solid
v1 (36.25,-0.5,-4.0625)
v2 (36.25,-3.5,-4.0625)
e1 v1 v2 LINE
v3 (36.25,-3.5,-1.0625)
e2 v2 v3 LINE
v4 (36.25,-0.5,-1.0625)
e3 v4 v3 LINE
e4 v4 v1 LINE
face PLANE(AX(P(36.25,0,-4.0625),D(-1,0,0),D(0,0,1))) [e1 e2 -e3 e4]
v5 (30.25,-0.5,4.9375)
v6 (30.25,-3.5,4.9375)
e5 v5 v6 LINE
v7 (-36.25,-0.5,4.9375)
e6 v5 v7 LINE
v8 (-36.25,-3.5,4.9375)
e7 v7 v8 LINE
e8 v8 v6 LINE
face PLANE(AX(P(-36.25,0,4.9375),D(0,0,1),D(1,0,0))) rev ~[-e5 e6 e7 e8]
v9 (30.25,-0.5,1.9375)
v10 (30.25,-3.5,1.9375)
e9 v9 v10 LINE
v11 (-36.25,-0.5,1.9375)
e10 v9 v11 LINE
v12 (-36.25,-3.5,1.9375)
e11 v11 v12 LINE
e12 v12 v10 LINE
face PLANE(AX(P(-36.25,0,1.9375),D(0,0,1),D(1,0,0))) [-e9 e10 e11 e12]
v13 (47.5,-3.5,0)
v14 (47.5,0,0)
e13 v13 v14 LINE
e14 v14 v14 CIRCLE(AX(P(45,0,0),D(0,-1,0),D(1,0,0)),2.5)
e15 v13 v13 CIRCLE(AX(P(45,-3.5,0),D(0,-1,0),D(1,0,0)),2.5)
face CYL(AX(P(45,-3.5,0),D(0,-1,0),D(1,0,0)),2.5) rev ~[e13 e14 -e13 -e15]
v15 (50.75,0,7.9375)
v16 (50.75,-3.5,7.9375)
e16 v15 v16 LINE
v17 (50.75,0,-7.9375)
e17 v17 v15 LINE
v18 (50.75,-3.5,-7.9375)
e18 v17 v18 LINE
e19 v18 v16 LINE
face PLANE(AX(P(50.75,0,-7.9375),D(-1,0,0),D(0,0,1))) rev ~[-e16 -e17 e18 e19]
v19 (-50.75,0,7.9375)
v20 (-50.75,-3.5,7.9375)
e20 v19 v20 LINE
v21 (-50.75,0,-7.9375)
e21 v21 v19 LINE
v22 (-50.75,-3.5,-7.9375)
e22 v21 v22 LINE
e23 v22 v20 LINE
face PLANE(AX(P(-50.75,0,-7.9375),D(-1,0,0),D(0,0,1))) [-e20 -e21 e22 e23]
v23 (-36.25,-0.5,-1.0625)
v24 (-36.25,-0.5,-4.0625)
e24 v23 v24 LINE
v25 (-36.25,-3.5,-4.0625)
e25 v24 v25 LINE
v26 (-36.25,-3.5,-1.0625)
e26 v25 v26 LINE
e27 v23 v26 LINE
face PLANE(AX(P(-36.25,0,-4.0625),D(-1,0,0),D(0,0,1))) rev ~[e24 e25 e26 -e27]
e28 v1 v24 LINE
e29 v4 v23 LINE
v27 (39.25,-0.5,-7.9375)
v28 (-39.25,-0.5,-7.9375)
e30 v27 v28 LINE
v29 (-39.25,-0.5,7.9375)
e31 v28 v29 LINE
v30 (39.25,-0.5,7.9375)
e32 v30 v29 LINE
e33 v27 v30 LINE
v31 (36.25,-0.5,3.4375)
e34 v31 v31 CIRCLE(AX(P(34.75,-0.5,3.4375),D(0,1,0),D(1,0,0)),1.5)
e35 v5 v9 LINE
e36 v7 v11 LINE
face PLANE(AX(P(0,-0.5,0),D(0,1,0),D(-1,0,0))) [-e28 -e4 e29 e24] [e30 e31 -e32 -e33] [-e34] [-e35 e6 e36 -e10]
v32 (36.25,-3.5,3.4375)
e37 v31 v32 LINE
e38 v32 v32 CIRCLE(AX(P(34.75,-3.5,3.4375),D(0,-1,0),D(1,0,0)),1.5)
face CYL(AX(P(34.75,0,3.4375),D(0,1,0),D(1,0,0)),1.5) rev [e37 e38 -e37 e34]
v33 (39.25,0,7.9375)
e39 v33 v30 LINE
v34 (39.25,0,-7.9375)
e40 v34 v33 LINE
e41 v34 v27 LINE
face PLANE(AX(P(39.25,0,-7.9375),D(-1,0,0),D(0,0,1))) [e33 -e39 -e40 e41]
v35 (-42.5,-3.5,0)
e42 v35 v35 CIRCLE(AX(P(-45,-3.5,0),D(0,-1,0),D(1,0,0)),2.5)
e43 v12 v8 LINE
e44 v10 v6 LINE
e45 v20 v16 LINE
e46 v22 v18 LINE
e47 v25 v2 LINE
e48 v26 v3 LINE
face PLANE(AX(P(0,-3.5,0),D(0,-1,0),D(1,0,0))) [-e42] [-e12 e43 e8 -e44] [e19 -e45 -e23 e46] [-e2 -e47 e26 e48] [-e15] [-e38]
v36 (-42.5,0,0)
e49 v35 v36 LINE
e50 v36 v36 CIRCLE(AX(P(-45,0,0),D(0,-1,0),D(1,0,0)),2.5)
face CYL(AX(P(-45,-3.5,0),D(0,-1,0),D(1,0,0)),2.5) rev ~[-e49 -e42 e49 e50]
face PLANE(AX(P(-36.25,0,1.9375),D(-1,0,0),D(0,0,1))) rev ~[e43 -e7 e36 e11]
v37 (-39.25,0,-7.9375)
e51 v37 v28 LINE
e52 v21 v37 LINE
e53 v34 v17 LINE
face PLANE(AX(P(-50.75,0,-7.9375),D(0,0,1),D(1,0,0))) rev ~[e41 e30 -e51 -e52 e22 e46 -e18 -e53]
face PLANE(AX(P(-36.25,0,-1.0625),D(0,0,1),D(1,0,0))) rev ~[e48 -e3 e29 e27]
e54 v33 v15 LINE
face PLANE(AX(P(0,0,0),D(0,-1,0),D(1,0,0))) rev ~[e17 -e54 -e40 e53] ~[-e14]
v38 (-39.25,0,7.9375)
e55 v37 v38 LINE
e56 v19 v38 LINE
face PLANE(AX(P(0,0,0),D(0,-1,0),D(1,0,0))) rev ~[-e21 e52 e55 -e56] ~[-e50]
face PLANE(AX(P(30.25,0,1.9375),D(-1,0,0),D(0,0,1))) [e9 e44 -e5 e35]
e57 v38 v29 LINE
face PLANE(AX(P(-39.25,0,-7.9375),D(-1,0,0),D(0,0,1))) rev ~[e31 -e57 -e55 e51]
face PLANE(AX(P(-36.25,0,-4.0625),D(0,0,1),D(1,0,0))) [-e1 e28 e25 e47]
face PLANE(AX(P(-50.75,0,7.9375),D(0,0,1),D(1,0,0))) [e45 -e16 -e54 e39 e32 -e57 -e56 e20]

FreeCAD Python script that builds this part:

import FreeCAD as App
import Part
import Sketcher

doc = App.newDocument("Part")
body = doc.addObject("PartDesign::Body", "Body")

sketch1 = body.newObject("Sketcher::SketchObject", "Sketch")
sketch1.AttachmentSupport = (doc.getObject("XZ_Plane"), [""])
sketch1.MapMode = "FlatFace"
sketch1.addGeometry([
    Part.LineSegment(App.Vector(-50.8, 7.9, 0), App.Vector(-50.8, -7.9, 0)),
    Part.LineSegment(App.Vector(-50.8, -7.9, 0), App.Vector(50.8, -7.9, 0)),
    Part.LineSegment(App.Vector(50.8, -7.9, 0), App.Vector(50.8, 7.9, 0)),
    Part.LineSegment(App.Vector(50.8, 7.9, 0), App.Vector(-50.8, 7.9, 0)),
    Part.LineSegment(App.Vector(36.2, -4.1, 0), App.Vector(-36.2, -4.1, 0)),
    Part.LineSegment(App.Vector(-36.2, -4.1, 0), App.Vector(-36.2, -1.1, 0)),
    Part.LineSegment(App.Vector(-36.2, -1.1, 0), App.Vector(36.2, -1.1, 0)),
    Part.LineSegment(App.Vector(36.2, -1.1, 0), App.Vector(36.2, -4.1, 0)),
    Part.LineSegment(App.Vector(30.2, 1.9, 0), App.Vector(-36.2, 1.9, 0)),
    Part.LineSegment(App.Vector(-36.2, 1.9, 0), App.Vector(-36.2, 4.9, 0)),
    Part.LineSegment(App.Vector(-36.2, 4.9, 0), App.Vector(30.2, 4.9, 0)),
    Part.LineSegment(App.Vector(30.2, 4.9, 0), App.Vector(30.2, 1.9, 0)),
    Part.Circle(App.Vector(34.8, 3.4, 0), App.Vector(0, 0, 1), 1.5),
], False)
sketch1.addConstraint([
    Sketcher.Constraint("Coincident", 0, 2, 1, 1),
    Sketcher.Constraint("Coincident", 1, 2, 2, 1),
    Sketcher.Constraint("Coincident", 2, 2, 3, 1),
    Sketcher.Constraint("Coincident", 3, 2, 0, 1),
    Sketcher.Constraint("Coincident", 4, 2, 5, 1),
    Sketcher.Constraint("Coincident", 5, 2, 6, 1),
    Sketcher.Constraint("Coincident", 6, 2, 7, 1),
    Sketcher.Constraint("Coincident", 7, 2, 4, 1),
    Sketcher.Constraint("Coincident", 8, 2, 9, 1),
    Sketcher.Constraint("Coincident", 9, 2, 10, 1),
    Sketcher.Constraint("Coincident", 10, 2, 11, 1),
    Sketcher.Constraint("Coincident", 11, 2, 8, 1),
    Sketcher.Constraint("Vertical", 0),
    Sketcher.Constraint("Horizontal", 1),
    Sketcher.Constraint("Vertical", 2),
    Sketcher.Constraint("Horizontal", 3),
    Sketcher.Constraint("Horizontal", 4),
    Sketcher.Constraint("Vertical", 5),
    Sketcher.Constraint("Horizontal", 6),
    Sketcher.Constraint("Vertical", 7),
    Sketcher.Constraint("Horizontal", 8),
    Sketcher.Constraint("Vertical", 9),
    Sketcher.Constraint("Horizontal", 10),
    Sketcher.Constraint("Vertical", 11),
    Sketcher.Constraint("Symmetric", 0, 2, 2, 2, -1, 1),
    Sketcher.Constraint("Vertical", 5, 2, 8, 2),
    Sketcher.Constraint("Equal", 7, 9),
    Sketcher.Constraint("Diameter", 12, 3.0),
    Sketcher.Constraint("DistanceY", 5, 1, 5, 2, 3.0),
    Sketcher.Constraint("DistanceX", 1, 1, 1, 2, 101.5),
    Sketcher.Constraint("DistanceX", 4, 2, 4, 1, 72.5),
    Sketcher.Constraint("DistanceX", 8, 2, 8, 1, 66.5),
    Sketcher.Constraint("DistanceX", 12, 3, 1, 2, 16.0),
    Sketcher.Constraint("DistanceY", 4, 2, 3, 2, 12.0),
    Sketcher.Constraint("DistanceX", 4, 2, 12, 3, 71.0),
    Sketcher.Constraint("DistanceY", 5, 2, 8, 2, 3.0),
    Sketcher.Constraint("DistanceY", 12, 3, 2, 2, 4.5),
    Sketcher.Constraint("DistanceY", 0, 2, 0, 1, 15.875),
])
pad1 = body.newObject("PartDesign::Pad", "Pad")
pad1.Profile = sketch1
pad1.Length = 3.5

sketch2 = body.newObject("Sketcher::SketchObject", "Sketch001")
sketch2.AttachmentSupport = (doc.getObject("XZ_Plane"), [""])
sketch2.MapMode = "FlatFace"
sketch2.addGeometry([
    Part.LineSegment(App.Vector(39, 8, 0), App.Vector(39, -8, 0)),
    Part.LineSegment(App.Vector(39, -8, 0), App.Vector(-39, -8, 0)),
    Part.LineSegment(App.Vector(-39, -8, 0), App.Vector(-39, 8, 0)),
    Part.LineSegment(App.Vector(-39, 8, 0), App.Vector(39, 8, 0)),
], False)
sketch2.addConstraint([
    Sketcher.Constraint("Coincident", 0, 2, 1, 1),
    Sketcher.Constraint("Coincident", 1, 2, 2, 1),
    Sketcher.Constraint("Coincident", 2, 2, 3, 1),
    Sketcher.Constraint("Coincident", 3, 2, 0, 1),
    Sketcher.Constraint("Vertical", 0),
    Sketcher.Constraint("Horizontal", 1),
    Sketcher.Constraint("Vertical", 2),
    Sketcher.Constraint("Horizontal", 3),
    Sketcher.Constraint("Symmetric", 0, 2, 2, 2, -1, 1),
    Sketcher.Constraint("DistanceX", 1, 2, 1, 1, 78.5),
    Sketcher.Constraint("DistanceY", 0, 2, 0, 1, 15.875),
])
pocket1 = body.newObject("PartDesign::Pocket", "Pocket")
pocket1.Profile = sketch2
pocket1.Length = 0.5
pocket1.Reversed = True

sketch3 = body.newObject("Sketcher::SketchObject", "Sketch002")
sketch3.AttachmentSupport = (doc.getObject("XZ_Plane"), [""])
sketch3.MapMode = "FlatFace"
sketch3.AttachmentOffset = App.Placement(App.Vector(0, 0, 3.5), App.Rotation())
sketch3.addGeometry([
    Part.Circle(App.Vector(-45, 0, 0), App.Vector(0, 0, 1), 2.5),
    Part.Circle(App.Vector(45, 0, 0), App.Vector(0, 0, 1), 2.5),
], False)
sketch3.addConstraint([
    Sketcher.Constraint("Equal", 0, 1),
    Sketcher.Constraint("Symmetric", 0, 3, 1, 3, -1, 1),
    Sketcher.Constraint("PointOnObject", 0, 3, -1),
    Sketcher.Constraint("Diameter", 0, 5.0),
    Sketcher.Constraint("DistanceX", 0, 3, -1, 1, 45.0),
])
pocket2 = body.newObject("PartDesign::Pocket", "Pocket001")
pocket2.Profile = sketch3
pocket2.Length = 25

doc.recompute()
